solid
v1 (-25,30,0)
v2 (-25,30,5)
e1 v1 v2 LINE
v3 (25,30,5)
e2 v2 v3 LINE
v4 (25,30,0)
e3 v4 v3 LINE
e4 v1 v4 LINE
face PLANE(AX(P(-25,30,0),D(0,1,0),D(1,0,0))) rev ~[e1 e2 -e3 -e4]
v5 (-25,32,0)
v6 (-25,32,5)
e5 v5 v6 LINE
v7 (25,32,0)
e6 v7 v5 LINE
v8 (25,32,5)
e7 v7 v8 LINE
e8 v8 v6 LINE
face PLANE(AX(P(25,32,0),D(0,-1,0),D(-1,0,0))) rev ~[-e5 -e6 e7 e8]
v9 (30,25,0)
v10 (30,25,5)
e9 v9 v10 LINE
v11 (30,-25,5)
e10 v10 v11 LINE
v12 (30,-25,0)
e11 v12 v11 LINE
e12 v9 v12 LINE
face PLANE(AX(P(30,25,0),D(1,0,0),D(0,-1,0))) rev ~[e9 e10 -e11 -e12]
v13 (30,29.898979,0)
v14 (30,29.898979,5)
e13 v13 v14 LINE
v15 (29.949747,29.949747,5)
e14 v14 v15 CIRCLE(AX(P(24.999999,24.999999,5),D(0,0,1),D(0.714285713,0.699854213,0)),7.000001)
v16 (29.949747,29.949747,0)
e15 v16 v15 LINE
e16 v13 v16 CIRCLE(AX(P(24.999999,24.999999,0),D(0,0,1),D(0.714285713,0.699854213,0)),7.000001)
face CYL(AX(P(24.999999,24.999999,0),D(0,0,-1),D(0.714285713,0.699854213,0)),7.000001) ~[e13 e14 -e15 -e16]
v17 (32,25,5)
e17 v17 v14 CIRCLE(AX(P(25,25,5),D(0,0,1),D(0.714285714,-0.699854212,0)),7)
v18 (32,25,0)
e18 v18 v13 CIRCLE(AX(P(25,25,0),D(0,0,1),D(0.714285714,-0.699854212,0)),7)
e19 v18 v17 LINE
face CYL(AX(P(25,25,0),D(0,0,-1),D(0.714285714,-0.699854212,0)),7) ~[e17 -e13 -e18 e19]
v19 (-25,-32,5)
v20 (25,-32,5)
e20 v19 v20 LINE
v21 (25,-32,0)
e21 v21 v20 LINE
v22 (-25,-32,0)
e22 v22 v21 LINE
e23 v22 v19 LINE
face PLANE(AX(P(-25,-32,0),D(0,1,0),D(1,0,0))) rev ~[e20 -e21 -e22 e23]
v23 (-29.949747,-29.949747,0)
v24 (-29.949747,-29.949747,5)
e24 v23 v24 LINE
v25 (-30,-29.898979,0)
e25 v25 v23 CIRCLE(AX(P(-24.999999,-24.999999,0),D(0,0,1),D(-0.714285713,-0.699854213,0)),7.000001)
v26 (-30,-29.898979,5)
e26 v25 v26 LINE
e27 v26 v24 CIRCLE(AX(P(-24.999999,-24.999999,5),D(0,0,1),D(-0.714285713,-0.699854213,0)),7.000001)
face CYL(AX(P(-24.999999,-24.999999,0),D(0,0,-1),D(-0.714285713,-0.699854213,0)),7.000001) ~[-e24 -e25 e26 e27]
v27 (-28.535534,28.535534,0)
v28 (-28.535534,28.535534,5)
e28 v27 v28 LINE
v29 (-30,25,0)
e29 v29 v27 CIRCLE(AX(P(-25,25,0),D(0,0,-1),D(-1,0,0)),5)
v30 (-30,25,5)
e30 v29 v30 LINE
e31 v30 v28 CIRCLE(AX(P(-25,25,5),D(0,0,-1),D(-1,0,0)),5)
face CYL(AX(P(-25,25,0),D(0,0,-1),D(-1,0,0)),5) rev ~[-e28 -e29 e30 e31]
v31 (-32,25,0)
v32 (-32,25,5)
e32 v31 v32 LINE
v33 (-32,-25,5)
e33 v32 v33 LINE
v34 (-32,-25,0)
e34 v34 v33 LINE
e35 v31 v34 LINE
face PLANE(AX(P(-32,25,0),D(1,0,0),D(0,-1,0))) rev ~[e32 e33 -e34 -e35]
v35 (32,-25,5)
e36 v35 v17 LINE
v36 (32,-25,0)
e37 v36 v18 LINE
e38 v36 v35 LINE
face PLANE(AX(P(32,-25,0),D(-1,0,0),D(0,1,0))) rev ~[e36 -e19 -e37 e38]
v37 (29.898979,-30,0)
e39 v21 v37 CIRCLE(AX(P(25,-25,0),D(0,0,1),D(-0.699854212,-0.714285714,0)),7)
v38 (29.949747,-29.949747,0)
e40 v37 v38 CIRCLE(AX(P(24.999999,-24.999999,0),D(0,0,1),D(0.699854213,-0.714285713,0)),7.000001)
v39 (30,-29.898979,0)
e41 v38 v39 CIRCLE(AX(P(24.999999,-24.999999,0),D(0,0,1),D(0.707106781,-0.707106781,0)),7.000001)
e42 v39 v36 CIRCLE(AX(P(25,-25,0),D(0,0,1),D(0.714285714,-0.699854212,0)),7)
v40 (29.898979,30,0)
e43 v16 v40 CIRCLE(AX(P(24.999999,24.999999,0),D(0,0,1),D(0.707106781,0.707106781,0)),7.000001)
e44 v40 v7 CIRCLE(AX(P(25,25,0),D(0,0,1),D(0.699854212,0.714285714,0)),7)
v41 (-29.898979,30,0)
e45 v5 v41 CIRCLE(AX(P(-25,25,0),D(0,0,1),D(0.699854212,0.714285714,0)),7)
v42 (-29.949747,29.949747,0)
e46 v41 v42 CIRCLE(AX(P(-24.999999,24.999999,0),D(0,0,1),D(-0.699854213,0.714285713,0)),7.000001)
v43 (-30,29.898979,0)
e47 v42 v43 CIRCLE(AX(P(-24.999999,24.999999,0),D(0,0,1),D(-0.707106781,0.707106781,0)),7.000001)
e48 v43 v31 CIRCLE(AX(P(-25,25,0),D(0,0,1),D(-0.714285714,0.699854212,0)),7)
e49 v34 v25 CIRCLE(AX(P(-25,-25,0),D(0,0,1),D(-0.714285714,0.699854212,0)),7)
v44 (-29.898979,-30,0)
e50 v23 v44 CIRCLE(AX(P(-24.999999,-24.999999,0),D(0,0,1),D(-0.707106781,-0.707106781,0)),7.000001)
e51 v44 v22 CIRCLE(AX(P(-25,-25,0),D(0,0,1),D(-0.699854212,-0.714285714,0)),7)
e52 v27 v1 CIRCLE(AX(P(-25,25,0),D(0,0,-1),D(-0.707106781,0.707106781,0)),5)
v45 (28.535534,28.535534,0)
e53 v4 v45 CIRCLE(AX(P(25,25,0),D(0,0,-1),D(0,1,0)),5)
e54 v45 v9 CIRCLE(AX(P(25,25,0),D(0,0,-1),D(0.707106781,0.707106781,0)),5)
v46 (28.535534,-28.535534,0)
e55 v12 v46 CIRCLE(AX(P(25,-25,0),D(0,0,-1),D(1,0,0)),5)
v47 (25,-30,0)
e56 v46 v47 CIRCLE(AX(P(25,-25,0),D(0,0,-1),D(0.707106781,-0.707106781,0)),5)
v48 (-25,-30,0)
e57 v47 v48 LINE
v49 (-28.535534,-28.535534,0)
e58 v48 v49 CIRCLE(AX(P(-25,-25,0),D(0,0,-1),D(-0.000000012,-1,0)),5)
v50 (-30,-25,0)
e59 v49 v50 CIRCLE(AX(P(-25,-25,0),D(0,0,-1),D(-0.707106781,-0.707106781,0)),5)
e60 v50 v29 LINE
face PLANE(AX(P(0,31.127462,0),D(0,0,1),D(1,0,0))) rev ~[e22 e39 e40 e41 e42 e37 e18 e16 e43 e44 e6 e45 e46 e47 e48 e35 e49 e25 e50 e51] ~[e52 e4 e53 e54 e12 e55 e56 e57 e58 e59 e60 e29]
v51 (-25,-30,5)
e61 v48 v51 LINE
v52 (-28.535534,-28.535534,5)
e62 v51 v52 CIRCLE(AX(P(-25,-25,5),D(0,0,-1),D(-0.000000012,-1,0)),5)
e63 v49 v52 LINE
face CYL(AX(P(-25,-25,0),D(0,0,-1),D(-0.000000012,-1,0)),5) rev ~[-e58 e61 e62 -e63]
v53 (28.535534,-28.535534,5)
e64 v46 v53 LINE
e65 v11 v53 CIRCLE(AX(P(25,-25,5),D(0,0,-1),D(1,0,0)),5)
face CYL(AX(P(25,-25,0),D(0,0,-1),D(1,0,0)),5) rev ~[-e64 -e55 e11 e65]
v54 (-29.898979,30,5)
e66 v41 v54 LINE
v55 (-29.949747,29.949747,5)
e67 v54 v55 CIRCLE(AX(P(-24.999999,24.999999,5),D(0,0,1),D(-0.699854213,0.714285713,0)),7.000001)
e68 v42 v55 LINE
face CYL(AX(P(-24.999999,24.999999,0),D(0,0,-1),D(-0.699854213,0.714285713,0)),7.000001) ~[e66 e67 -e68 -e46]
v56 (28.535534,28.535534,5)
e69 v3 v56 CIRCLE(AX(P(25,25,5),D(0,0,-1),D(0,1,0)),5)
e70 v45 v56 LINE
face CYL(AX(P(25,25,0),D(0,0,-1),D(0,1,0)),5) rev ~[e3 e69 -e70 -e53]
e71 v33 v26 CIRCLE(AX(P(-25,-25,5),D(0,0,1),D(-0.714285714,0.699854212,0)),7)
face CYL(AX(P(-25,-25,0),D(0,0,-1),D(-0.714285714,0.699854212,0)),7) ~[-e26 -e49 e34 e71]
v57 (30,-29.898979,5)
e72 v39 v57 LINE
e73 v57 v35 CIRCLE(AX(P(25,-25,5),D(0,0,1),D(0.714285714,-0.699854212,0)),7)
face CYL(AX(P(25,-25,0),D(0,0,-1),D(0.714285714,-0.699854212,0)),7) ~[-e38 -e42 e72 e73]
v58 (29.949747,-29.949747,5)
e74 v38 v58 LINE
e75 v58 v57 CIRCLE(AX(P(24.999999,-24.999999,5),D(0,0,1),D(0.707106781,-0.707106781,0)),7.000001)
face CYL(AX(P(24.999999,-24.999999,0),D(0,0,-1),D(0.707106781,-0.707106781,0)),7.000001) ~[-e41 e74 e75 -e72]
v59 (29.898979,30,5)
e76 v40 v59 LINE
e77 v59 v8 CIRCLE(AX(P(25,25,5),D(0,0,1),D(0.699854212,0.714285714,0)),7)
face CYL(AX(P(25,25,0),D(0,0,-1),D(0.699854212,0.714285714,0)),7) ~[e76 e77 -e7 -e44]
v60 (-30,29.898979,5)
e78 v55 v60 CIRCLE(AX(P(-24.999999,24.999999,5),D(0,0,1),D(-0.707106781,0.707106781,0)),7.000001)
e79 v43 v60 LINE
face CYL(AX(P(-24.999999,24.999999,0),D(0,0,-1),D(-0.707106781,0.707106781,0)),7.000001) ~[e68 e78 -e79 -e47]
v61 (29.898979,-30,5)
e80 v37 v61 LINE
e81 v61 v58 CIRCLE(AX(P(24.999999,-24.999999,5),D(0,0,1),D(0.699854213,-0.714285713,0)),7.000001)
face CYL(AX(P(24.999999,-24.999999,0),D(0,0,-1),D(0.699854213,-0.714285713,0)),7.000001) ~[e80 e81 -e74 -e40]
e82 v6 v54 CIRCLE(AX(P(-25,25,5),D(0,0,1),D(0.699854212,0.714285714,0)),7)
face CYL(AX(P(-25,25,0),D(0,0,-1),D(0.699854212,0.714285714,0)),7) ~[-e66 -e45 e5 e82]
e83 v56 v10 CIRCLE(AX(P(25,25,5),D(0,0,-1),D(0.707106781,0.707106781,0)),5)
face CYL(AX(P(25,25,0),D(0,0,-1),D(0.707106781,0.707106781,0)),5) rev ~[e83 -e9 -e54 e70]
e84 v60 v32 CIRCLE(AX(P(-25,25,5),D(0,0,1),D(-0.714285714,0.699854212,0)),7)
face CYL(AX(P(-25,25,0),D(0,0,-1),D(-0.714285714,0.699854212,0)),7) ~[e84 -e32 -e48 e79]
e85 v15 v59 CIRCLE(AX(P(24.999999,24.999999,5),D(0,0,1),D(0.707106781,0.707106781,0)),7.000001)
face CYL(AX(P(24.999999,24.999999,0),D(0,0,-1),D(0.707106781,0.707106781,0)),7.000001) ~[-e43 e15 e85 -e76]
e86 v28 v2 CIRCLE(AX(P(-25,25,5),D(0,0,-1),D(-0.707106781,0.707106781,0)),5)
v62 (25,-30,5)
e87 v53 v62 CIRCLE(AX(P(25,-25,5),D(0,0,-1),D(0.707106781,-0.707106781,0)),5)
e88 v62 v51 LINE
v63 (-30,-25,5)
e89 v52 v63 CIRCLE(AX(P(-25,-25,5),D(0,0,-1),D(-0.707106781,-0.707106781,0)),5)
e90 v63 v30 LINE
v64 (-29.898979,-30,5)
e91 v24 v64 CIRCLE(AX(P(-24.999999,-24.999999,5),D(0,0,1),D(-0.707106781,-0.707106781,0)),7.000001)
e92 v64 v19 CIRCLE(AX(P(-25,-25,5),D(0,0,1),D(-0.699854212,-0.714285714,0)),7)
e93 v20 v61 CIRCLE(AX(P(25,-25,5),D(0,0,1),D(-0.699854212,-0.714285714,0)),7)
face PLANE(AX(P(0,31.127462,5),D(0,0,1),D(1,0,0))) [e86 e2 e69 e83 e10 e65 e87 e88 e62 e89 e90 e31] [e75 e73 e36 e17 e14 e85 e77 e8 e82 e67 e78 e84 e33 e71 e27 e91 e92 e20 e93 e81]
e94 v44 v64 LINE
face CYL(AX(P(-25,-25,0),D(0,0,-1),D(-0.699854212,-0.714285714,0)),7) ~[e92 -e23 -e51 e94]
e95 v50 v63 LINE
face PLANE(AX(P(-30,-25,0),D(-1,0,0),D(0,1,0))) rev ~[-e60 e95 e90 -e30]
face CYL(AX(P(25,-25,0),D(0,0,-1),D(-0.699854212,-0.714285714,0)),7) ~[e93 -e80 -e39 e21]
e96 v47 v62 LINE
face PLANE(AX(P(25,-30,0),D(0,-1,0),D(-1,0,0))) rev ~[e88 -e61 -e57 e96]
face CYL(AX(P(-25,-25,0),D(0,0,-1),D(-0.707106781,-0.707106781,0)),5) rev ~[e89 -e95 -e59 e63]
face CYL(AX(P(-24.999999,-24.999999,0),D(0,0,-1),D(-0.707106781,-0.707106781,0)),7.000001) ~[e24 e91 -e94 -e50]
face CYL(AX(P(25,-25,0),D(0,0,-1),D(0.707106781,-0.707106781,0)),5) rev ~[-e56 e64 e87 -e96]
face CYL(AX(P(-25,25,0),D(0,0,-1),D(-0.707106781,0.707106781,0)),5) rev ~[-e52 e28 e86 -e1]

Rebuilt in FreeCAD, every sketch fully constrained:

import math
import FreeCAD as App
import Part
import Sketcher
from FreeCAD import Vector

doc = App.newDocument("Part")
body = doc.addObject("PartDesign::Body", "Body")

sketch1 = doc.addObject("Sketcher::SketchObject", "Sketch")
body.addObject(sketch1)
sketch1.AttachmentSupport = (doc.XY_Plane, [""])
sketch1.MapMode = "FlatFace"
sketch1.addGeometry([
    Part.LineSegment(Vector(25, 32, 0), Vector(-25, 32, 0)),
    Part.ArcOfCircle(Part.Circle(Vector(-25, 25, 0), Vector(0, 0, 1), 7), math.radians(90), math.radians(134)),
    Part.ArcOfCircle(Part.Circle(Vector(-25, 25, 0), Vector(0, 0, 1), 7), math.radians(134.42), math.radians(135)),
    Part.ArcOfCircle(Part.Circle(Vector(-25, 25, 0), Vector(0, 0, 1), 7), math.radians(135), math.radians(135.58)),
    Part.ArcOfCircle(Part.Circle(Vector(-25, 25, 0), Vector(0, 0, 1), 7), math.radians(136), math.radians(180)),
    Part.LineSegment(Vector(-32, 25, 0), Vector(-32, -25, 0)),
    Part.ArcOfCircle(Part.Circle(Vector(-25, -25, 0), Vector(0, 0, 1), 7), math.radians(180), math.radians(224)),
    Part.ArcOfCircle(Part.Circle(Vector(-25, -25, 0), Vector(0, 0, 1), 7), math.radians(-135.58), math.radians(-135)),
    Part.ArcOfCircle(Part.Circle(Vector(-25, -25, 0), Vector(0, 0, 1), 7), math.radians(-135), math.radians(-134.42)),
    Part.ArcOfCircle(Part.Circle(Vector(-25, -25, 0), Vector(0, 0, 1), 7), math.radians(-134), math.radians(-90)),
    Part.LineSegment(Vector(-25, -32, 0), Vector(25, -32, 0)),
    Part.ArcOfCircle(Part.Circle(Vector(25, -25, 0), Vector(0, 0, 1), 7), math.radians(-90), math.radians(-46)),
    Part.ArcOfCircle(Part.Circle(Vector(25, -25, 0), Vector(0, 0, 1), 7), math.radians(-45.58), math.radians(-45)),
    Part.ArcOfCircle(Part.Circle(Vector(25, -25, 0), Vector(0, 0, 1), 7), math.radians(-45), math.radians(-44.42)),
    Part.ArcOfCircle(Part.Circle(Vector(25, -25, 0), Vector(0, 0, 1), 7), math.radians(-44), math.radians(0)),
    Part.LineSegment(Vector(32, -25, 0), Vector(32, 25, 0)),
    Part.ArcOfCircle(Part.Circle(Vector(25, 25, 0), Vector(0, 0, 1), 7), math.radians(0), math.radians(44)),
    Part.ArcOfCircle(Part.Circle(Vector(25, 25, 0), Vector(0, 0, 1), 7), math.radians(44.42), math.radians(45)),
    Part.ArcOfCircle(Part.Circle(Vector(25, 25, 0), Vector(0, 0, 1), 7), math.radians(45), math.radians(45.58)),
    Part.ArcOfCircle(Part.Circle(Vector(25, 25, 0), Vector(0, 0, 1), 7), math.radians(46), math.radians(90)),
    Part.LineSegment(Vector(-25, 30, 0), Vector(25, 30, 0)),
    Part.ArcOfCircle(Part.Circle(Vector(25, 25, 0), Vector(0, 0, 1), 5), math.radians(45), math.radians(90)),
    Part.ArcOfCircle(Part.Circle(Vector(25, 25, 0), Vector(0, 0, 1), 5), math.radians(0), math.radians(45)),
    Part.LineSegment(Vector(30, 25, 0), Vector(30, -25, 0)),
    Part.ArcOfCircle(Part.Circle(Vector(25, -25, 0), Vector(0, 0, 1), 5), math.radians(-45), math.radians(0)),
    Part.ArcOfCircle(Part.Circle(Vector(25, -25, 0), Vector(0, 0, 1), 5), math.radians(-90), math.radians(-45)),
    Part.LineSegment(Vector(25, -30, 0), Vector(-25, -30, 0)),
    Part.ArcOfCircle(Part.Circle(Vector(-25, -25, 0), Vector(0, 0, 1), 5), math.radians(-135), math.radians(-90)),
    Part.ArcOfCircle(Part.Circle(Vector(-25, -25, 0), Vector(0, 0, 1), 5), math.radians(180), math.radians(225)),
    Part.LineSegment(Vector(-30, -25, 0), Vector(-30, 25, 0)),
    Part.ArcOfCircle(Part.Circle(Vector(-25, 25, 0), Vector(0, 0, 1), 5), math.radians(135), math.radians(180)),
    Part.ArcOfCircle(Part.Circle(Vector(-25, 25, 0), Vector(0, 0, 1), 5), math.radians(90), math.radians(135)),
], False)
sketch1.addConstraint([
    Sketcher.Constraint("Tangent", 0, 2, 1, 1),
    Sketcher.Constraint("Tangent", 1, 2, 2, 1),
    Sketcher.Constraint("Tangent", 2, 2, 3, 1),
    Sketcher.Constraint("Tangent", 3, 2, 4, 1),
    Sketcher.Constraint("Tangent", 4, 2, 5, 1),
    Sketcher.Constraint("Tangent", 5, 2, 6, 1),
    Sketcher.Constraint("Tangent", 6, 2, 7, 1),
    Sketcher.Constraint("Tangent", 7, 2, 8, 1),
    Sketcher.Constraint("Tangent", 8, 2, 9, 1),
    Sketcher.Constraint("Tangent", 9, 2, 10, 1),
    Sketcher.Constraint("Tangent", 10, 2, 11, 1),
    Sketcher.Constraint("Tangent", 11, 2, 12, 1),
    Sketcher.Constraint("Tangent", 12, 2, 13, 1),
    Sketcher.Constraint("Tangent", 13, 2, 14, 1),
    Sketcher.Constraint("Tangent", 14, 2, 15, 1),
    Sketcher.Constraint("Tangent", 15, 2, 16, 1),
    Sketcher.Constraint("Tangent", 16, 2, 17, 1),
    Sketcher.Constraint("Tangent", 17, 2, 18, 1),
    Sketcher.Constraint("Tangent", 18, 2, 19, 1),
    Sketcher.Constraint("Tangent", 19, 2, 0, 1),
    Sketcher.Constraint("Tangent", 20, 2, 21, 2),
    Sketcher.Constraint("Tangent", 21, 1, 22, 2),
    Sketcher.Constraint("Tangent", 22, 1, 23, 1),
    Sketcher.Constraint("Tangent", 23, 2, 24, 2),
    Sketcher.Constraint("Tangent", 24, 1, 25, 2),
    Sketcher.Constraint("Tangent", 25, 1, 26, 1),
    Sketcher.Constraint("Tangent", 26, 2, 27, 2),
    Sketcher.Constraint("Tangent", 27, 1, 28, 2),
    Sketcher.Constraint("Tangent", 28, 1, 29, 1),
    Sketcher.Constraint("Tangent", 29, 2, 30, 2),
    Sketcher.Constraint("Tangent", 30, 1, 31, 2),
    Sketcher.Constraint("Tangent", 31, 1, 20, 1),
    Sketcher.Constraint("Horizontal", 0),
    Sketcher.Constraint("Vertical", 5),
    Sketcher.Constraint("Horizontal", 10),
    Sketcher.Constraint("Vertical", 15),
    Sketcher.Constraint("Horizontal", 20),
    Sketcher.Constraint("Vertical", 23),
    Sketcher.Constraint("Horizontal", 26),
    Sketcher.Constraint("Vertical", 29),
    Sketcher.Constraint("Coincident", 3, 3, 1, 3),
    Sketcher.Constraint("Coincident", 8, 3, 6, 3),
    Sketcher.Constraint("Coincident", 13, 3, 11, 3),
    Sketcher.Constraint("Coincident", 18, 3, 16, 3),
    Sketcher.Constraint("Coincident", 21, 3, 16, 3),
    Sketcher.Constraint("Coincident", 24, 3, 11, 3),
    Sketcher.Constraint("Coincident", 27, 3, 6, 3),
    Sketcher.Constraint("Coincident", 30, 3, 1, 3),
    Sketcher.Constraint("Equal", 3, 4),
    Sketcher.Constraint("Equal", 4, 6),
    Sketcher.Constraint("Equal", 8, 9),
    Sketcher.Constraint("Equal", 9, 11),
    Sketcher.Constraint("Equal", 13, 14),
    Sketcher.Constraint("Equal", 14, 16),
    Sketcher.Constraint("Equal", 18, 19),
    Sketcher.Constraint("Equal", 21, 22),
    Sketcher.Constraint("Equal", 24, 25),
    Sketcher.Constraint("Equal", 27, 28),
    Sketcher.Constraint("Symmetric", 1, 3, 11, 3, -1, 1),
    Sketcher.Constraint("Horizontal", 8, 2, 11, 2),
    Sketcher.Constraint("Horizontal", 7, 2, 12, 2),
    Sketcher.Constraint("Horizontal", 6, 2, 13, 2),
    Sketcher.Constraint("Horizontal", 3, 2, 16, 2),
    Sketcher.Constraint("Horizontal", 2, 2, 17, 2),
    Sketcher.Constraint("Horizontal", 1, 2, 18, 2),
    Sketcher.Constraint("Horizontal", 18, 2, 20, 2),
    Sketcher.Constraint("Horizontal", 11, 2, 25, 1),
    Sketcher.Constraint("Horizontal", 24, 1, 27, 1),
    Sketcher.Constraint("Horizontal", 21, 1, 30, 1),
    Sketcher.Constraint("Vertical", 3, 2, 6, 2),
    Sketcher.Constraint("Vertical", 2, 2, 7, 2),
    Sketcher.Constraint("Vertical", 16, 2, 22, 1),
    Sketcher.Constraint("Vertical", 21, 1, 24, 1),
    Sketcher.Constraint("Equal", 26, 5),
    Sketcher.Constraint("Radius", 1, 7.0),
    Sketcher.Constraint("Radius", 21, 5.0),
    Sketcher.Constraint("DistanceX", 0, 2, 0, 1, 50.0),
    Sketcher.Constraint("DistanceX", 2, 2, -1, 1, 29.949747),
    Sketcher.Constraint("DistanceX", -1, 1, 21, 1, 28.535534),
])
pad1 = doc.addObject("PartDesign::Pad", "Pad")
body.addObject(pad1)
pad1.Profile = sketch1
pad1.Length = 5

doc.recompute()
